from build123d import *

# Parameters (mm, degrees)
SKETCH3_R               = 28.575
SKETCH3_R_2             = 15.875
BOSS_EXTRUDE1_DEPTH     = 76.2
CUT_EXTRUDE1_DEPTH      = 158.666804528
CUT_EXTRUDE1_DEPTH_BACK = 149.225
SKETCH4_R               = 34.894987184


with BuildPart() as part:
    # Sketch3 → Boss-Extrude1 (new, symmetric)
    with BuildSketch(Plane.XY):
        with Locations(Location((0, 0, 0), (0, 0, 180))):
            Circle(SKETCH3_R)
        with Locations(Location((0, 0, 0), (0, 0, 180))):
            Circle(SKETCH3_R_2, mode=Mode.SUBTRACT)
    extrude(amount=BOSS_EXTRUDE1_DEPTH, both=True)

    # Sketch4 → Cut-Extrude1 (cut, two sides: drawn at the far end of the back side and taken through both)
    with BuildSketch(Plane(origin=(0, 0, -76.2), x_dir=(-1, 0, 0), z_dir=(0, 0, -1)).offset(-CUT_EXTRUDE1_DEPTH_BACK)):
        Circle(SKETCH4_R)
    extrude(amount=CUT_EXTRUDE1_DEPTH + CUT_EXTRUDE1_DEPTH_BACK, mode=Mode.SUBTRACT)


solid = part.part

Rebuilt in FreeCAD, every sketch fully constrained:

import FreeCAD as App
import Part
import Sketcher

V = App.Vector
Q = App.Units.Quantity

doc = App.newDocument("Part")
body = doc.addObject("PartDesign::Body", "Body")

# Sketch on XY plane
sketch1 = body.newObject("Sketcher::SketchObject", "Sketch")
sketch1.AttachmentSupport = (doc.getObject("XY_Plane"), [""])
sketch1.MapMode = "FlatFace"
sketch1.addGeometry(Part.Circle(V(0, 0, 0), V(0, 0, 1), 29), False)
sketch1.addGeometry(Part.Circle(V(0, 0, 0), V(0, 0, 1), 16), False)
sketch1.addConstraint(Sketcher.Constraint("Coincident", 0, 3, -1, 1))
sketch1.addConstraint(Sketcher.Constraint("Coincident", 1, 3, -1, 1))
sketch1.addConstraint(Sketcher.Constraint("Diameter", 0, Q("2.25 in")))
sketch1.addConstraint(Sketcher.Constraint("Diameter", 1, Q("1.25 in")))
pad1 = body.newObject("PartDesign::Pad", "Pad")
pad1.Profile = sketch1
pad1.Length = Q("6 in")
pad1.Midplane = True

# Sketch on XY plane
sketch2 = body.newObject("Sketcher::SketchObject", "Sketch001")
sketch2.AttachmentSupport = (doc.getObject("XY_Plane"), [""])
sketch2.MapMode = "FlatFace"
sketch2.AttachmentOffset = App.Placement(V(0, 0, -3 * 25.4), App.Rotation())
sketch2.addGeometry(Part.Circle(V(0, 0, 0), V(0, 0, 1), 35), False)
sketch2.addConstraint(Sketcher.Constraint("Coincident", 0, 3, -1, 1))
sketch2.addConstraint(Sketcher.Constraint("Diameter", 0, 69.789974))
pocket1 = body.newObject("PartDesign::Pocket", "Pocket")
pocket1.Profile = sketch2
pocket1.Type = "TwoLengths"
pocket1.Length = 158.666805
pocket1.Length2 = Q("5.875 in")

doc.recompute()
